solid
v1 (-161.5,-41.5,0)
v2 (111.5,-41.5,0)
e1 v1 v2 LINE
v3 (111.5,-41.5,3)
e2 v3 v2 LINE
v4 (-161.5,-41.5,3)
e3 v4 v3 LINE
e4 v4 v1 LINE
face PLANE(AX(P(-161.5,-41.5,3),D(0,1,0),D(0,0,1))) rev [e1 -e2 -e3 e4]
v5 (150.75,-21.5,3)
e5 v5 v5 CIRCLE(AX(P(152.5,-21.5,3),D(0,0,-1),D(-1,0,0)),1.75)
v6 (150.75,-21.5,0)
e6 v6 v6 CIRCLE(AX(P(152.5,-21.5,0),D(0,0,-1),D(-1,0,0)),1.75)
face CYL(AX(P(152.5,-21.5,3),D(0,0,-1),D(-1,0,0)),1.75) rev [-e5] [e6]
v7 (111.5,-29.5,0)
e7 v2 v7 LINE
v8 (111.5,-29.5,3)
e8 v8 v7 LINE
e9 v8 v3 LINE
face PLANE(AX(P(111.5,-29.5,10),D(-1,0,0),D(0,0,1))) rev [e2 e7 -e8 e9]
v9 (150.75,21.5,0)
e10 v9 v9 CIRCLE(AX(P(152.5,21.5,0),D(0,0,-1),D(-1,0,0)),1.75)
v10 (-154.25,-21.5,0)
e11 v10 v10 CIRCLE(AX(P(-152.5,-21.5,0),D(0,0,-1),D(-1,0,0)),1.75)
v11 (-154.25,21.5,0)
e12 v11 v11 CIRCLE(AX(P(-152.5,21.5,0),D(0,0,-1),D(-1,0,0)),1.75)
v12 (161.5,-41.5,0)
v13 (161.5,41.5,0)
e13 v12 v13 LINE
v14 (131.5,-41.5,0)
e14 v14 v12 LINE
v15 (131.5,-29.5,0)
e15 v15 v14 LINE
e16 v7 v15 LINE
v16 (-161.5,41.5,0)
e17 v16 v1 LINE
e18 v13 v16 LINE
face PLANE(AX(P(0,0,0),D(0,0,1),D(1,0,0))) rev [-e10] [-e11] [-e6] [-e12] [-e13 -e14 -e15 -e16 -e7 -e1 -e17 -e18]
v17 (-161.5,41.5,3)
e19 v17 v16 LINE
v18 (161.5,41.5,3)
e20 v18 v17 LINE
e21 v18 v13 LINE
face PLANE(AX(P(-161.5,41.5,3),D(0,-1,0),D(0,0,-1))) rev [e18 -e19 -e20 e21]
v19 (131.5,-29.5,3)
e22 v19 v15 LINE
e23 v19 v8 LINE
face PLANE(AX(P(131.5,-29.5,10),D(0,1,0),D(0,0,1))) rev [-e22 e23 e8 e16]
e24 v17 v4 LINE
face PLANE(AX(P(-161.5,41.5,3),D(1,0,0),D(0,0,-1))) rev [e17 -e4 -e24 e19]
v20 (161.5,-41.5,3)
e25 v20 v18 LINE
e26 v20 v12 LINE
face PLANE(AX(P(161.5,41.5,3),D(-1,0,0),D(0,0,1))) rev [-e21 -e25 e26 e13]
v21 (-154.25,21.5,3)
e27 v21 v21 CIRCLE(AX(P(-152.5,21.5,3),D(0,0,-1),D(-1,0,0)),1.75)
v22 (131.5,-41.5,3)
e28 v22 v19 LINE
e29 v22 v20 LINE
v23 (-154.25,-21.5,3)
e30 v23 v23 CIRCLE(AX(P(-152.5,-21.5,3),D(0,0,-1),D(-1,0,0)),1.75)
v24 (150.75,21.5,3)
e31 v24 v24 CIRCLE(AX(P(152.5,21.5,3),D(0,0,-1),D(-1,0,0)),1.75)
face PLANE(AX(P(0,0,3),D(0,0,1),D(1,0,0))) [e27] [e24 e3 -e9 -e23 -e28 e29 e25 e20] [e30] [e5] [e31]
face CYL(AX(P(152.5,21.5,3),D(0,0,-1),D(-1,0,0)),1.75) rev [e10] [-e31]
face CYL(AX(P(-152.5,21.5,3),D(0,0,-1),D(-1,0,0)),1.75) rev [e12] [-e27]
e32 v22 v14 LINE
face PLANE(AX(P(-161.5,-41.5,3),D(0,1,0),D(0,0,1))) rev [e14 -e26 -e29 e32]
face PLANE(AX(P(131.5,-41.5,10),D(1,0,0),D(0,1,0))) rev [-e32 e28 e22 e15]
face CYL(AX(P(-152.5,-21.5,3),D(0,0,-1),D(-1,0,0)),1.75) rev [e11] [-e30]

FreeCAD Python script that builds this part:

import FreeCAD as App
import Part
import Sketcher
from FreeCAD import Vector

doc = App.newDocument("Part")
body = doc.addObject("PartDesign::Body", "Body")

# Sketch on XY plane
sketch1 = body.newObject("Sketcher::SketchObject", "Sketch")
sketch1.AttachmentSupport = (doc.getObject("XY_Plane"), [""])
sketch1.MapMode = "FlatFace"
sketch1.addGeometry(Part.LineSegment(Vector(-161.5, 41.5, 0), Vector(-161.5, -41.5, 0)), False)
sketch1.addGeometry(Part.LineSegment(Vector(-161.5, -41.5, 0), Vector(161.5, -41.5, 0)), False)
sketch1.addGeometry(Part.LineSegment(Vector(161.5, -41.5, 0), Vector(161.5, 41.5, 0)), False)
sketch1.addGeometry(Part.LineSegment(Vector(161.5, 41.5, 0), Vector(-161.5, 41.5, 0)), False)
sketch1.addConstraint(Sketcher.Constraint("Coincident", 0, 2, 1, 1))
sketch1.addConstraint(Sketcher.Constraint("Coincident", 1, 2, 2, 1))
sketch1.addConstraint(Sketcher.Constraint("Coincident", 2, 2, 3, 1))
sketch1.addConstraint(Sketcher.Constraint("Coincident", 3, 2, 0, 1))
sketch1.addConstraint(Sketcher.Constraint("Vertical", 0))
sketch1.addConstraint(Sketcher.Constraint("Horizontal", 1))
sketch1.addConstraint(Sketcher.Constraint("Vertical", 2))
sketch1.addConstraint(Sketcher.Constraint("Horizontal", 3))
sketch1.addConstraint(Sketcher.Constraint("Symmetric", 0, 2, 2, 2, -1, 1))
sketch1.addConstraint(Sketcher.Constraint("DistanceX", 1, 1, 1, 2, 323.0))
sketch1.addConstraint(Sketcher.Constraint("DistanceY", 0, 2, 0, 1, 83.0))
pad1 = body.newObject("PartDesign::Pad", "Pad")
pad1.Profile = sketch1
pad1.Length = 3

# Sketch on XY plane
sketch2 = body.newObject("Sketcher::SketchObject", "Sketch001")
sketch2.AttachmentSupport = (doc.getObject("XY_Plane"), [""])
sketch2.MapMode = "FlatFace"
sketch2.addGeometry(Part.LineSegment(Vector(131.5, -29.5, 0), Vector(131.5, -41.5, 0)), False)
sketch2.addGeometry(Part.LineSegment(Vector(131.5, -41.5, 0), Vector(111.5, -41.5, 0)), False)
sketch2.addGeometry(Part.LineSegment(Vector(111.5, -41.5, 0), Vector(111.5, -29.5, 0)), False)
sketch2.addGeometry(Part.LineSegment(Vector(111.5, -29.5, 0), Vector(131.5, -29.5, 0)), False)
sketch2.addConstraint(Sketcher.Constraint("Coincident", 0, 2, 1, 1))
sketch2.addConstraint(Sketcher.Constraint("Coincident", 1, 2, 2, 1))
sketch2.addConstraint(Sketcher.Constraint("Coincident", 2, 2, 3, 1))
sketch2.addConstraint(Sketcher.Constraint("Coincident", 3, 2, 0, 1))
sketch2.addConstraint(Sketcher.Constraint("Vertical", 0))
sketch2.addConstraint(Sketcher.Constraint("Horizontal", 1))
sketch2.addConstraint(Sketcher.Constraint("Vertical", 2))
sketch2.addConstraint(Sketcher.Constraint("Horizontal", 3))
sketch2.addConstraint(Sketcher.Constraint("DistanceX", 1, 2, 1, 1, 20.0))
sketch2.addConstraint(Sketcher.Constraint("DistanceY", 0, 2, 0, 1, 12.0))
sketch2.addConstraint(Sketcher.Constraint("DistanceX", -1, 1, 0, 2, 131.5))
sketch2.addConstraint(Sketcher.Constraint("DistanceY", 0, 2, -1, 1, 41.5))
pocket1 = body.newObject("PartDesign::Pocket", "Pocket")
pocket1.Profile = sketch2
pocket1.Length = 10
pocket1.Reversed = True

# Sketch on XY plane
sketch3 = body.newObject("Sketcher::SketchObject", "Sketch002")
sketch3.AttachmentSupport = (doc.getObject("XY_Plane"), [""])
sketch3.MapMode = "FlatFace"
sketch3.addGeometry(Part.Circle(Vector(-152.5, -21.5, 0), Vector(0, 0, 1), 1.75), False)
sketch3.addGeometry(Part.Circle(Vector(152.5, -21.5, 0), Vector(0, 0, 1), 1.75), False)
sketch3.addGeometry(Part.Circle(Vector(-152.5, 21.5, 0), Vector(0, 0, 1), 1.75), False)
sketch3.addGeometry(Part.Circle(Vector(152.5, 21.5, 0), Vector(0, 0, 1), 1.75), False)
sketch3.addConstraint(Sketcher.Constraint("Equal", 0, 1))
sketch3.addConstraint(Sketcher.Constraint("Equal", 1, 2))
sketch3.addConstraint(Sketcher.Constraint("Equal", 2, 3))
sketch3.addConstraint(Sketcher.Constraint("Symmetric", 1, 3, 2, 3, -1, 1))
sketch3.addConstraint(Sketcher.Constraint("Symmetric", 0, 3, 3, 3, -1, 1))
sketch3.addConstraint(Sketcher.Constraint("Symmetric", 0, 3, 1, 3, -2))
sketch3.addConstraint(Sketcher.Constraint("Diameter", 0, 3.5))
sketch3.addConstraint(Sketcher.Constraint("DistanceX", 0, 3, 1, 3, 305.0))
sketch3.addConstraint(Sketcher.Constraint("DistanceY", 0, 3, 2, 3, 43.0))
pocket2 = body.newObject("PartDesign::Pocket", "Pocket001")
pocket2.Profile = sketch3
pocket2.Type = "ThroughAll"
pocket2.Reversed = True

doc.recompute()
